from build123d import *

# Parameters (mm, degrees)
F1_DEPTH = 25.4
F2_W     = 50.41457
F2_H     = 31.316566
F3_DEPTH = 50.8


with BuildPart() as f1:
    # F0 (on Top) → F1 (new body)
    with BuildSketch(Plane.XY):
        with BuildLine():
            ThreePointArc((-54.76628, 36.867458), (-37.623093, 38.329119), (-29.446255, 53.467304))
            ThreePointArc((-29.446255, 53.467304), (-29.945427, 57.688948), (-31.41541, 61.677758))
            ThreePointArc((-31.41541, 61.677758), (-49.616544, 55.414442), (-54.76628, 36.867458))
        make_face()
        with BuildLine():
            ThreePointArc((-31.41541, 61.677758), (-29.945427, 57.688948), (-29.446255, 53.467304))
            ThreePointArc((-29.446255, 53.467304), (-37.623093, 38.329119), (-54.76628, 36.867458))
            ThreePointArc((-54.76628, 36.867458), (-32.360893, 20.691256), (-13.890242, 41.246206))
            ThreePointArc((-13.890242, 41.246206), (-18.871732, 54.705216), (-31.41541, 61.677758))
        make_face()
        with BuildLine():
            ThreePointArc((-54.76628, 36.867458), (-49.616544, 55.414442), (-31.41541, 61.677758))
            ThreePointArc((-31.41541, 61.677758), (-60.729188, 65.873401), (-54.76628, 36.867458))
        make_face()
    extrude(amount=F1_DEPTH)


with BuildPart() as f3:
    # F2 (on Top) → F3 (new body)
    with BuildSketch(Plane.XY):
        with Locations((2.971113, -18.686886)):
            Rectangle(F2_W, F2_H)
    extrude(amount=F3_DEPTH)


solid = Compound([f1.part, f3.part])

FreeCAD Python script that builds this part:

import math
import FreeCAD as App
import Part
import Sketcher

V = App.Vector
Q = App.Units.Quantity

doc = App.newDocument("Part")
params = doc.addObject("Spreadsheet::Sheet", "Params")
for row, (alias, value) in enumerate([
    ("pad1_length", "1 in"),
    ("pad2_length", "2 in"),
], start=1):
    params.set(f"A{row}", alias)
    params.set(f"B{row}", "=" + value)
    params.setAlias(f"B{row}", alias)

body = doc.addObject("PartDesign::Body", "Body")

# Sketch on XY plane
sketch1 = doc.addObject("Sketcher::SketchObject", "Sketch")
body.addObject(sketch1)
sketch1.AttachmentSupport = (doc.XY_Plane, [""])
sketch1.MapMode = "FlatFace"
sketch1.addGeometry([
    Part.ArcOfCircle(Part.Circle(V(-35, 41, 0), V(0, 0, 1), 21), math.radians(-168), math.radians(0)),
    Part.ArcOfCircle(Part.Circle(V(-35, 41, 0), V(0, 0, 1), 21), math.radians(0), math.radians(81)),
    Part.ArcOfCircle(Part.Circle(V(-48, 53, 0), V(0, 0, 1), 18), math.radians(27), math.radians(246)),
], False)
sketch1.addConstraint([
    Sketcher.Constraint("Tangent", 0, 2, 1, 1),
    Sketcher.Constraint("Coincident", 1, 2, 2, 1),
    Sketcher.Constraint("Coincident", 2, 2, 0, 1),
    Sketcher.Constraint("Equal", 0, 1),
    Sketcher.Constraint("Horizontal", 1, 3, 0, 2),
    Sketcher.Constraint("Radius", 0, Q("20.67255 mm")),
    Sketcher.Constraint("Radius", 2, Q("18.101454 mm")),
    Sketcher.Constraint("DistanceY", 1, 3, 2, 3, Q("12.221098 mm")),
    Sketcher.Constraint("DistanceX", 2, 3, 1, 2, Q("16.132299 mm")),
    Sketcher.Constraint("DistanceX", 2, 3, -1, 1, Q("47.547709 mm")),
    Sketcher.Constraint("DistanceY", -1, 1, 0, 3, Q("41.246206 mm")),
])
pad1 = doc.addObject("PartDesign::Pad", "Pad")
body.addObject(pad1)
pad1.Profile = sketch1
pad1.setExpression("Length", "Params.pad1_length")
body2 = doc.addObject("PartDesign::Body", "Body001")

# Sketch on XY plane
sketch2 = doc.addObject("Sketcher::SketchObject", "Sketch001")
body2.addObject(sketch2)
sketch2.AttachmentSupport = (doc.getObject("XY_Plane001"), [""])
sketch2.MapMode = "FlatFace"
sketch2.addGeometry([
    Part.LineSegment(V(-22, -3, 0), V(-22, -34, 0)),
    Part.LineSegment(V(-22, -34, 0), V(28, -34, 0)),
    Part.LineSegment(V(28, -34, 0), V(28, -3, 0)),
    Part.LineSegment(V(28, -3, 0), V(-22, -3, 0)),
], False)
sketch2.addConstraint([
    Sketcher.Constraint("Coincident", 0, 2, 1, 1),
    Sketcher.Constraint("Coincident", 1, 2, 2, 1),
    Sketcher.Constraint("Coincident", 2, 2, 3, 1),
    Sketcher.Constraint("Coincident", 3, 2, 0, 1),
    Sketcher.Constraint("Vertical", 0),
    Sketcher.Constraint("Horizontal", 1),
    Sketcher.Constraint("Vertical", 2),
    Sketcher.Constraint("Horizontal", 3),
    Sketcher.Constraint("DistanceX", 1, 1, 1, 2, Q("50.41457 mm")),
    Sketcher.Constraint("DistanceX", -1, 1, 1, 2, Q("28.178398 mm")),
    Sketcher.Constraint("DistanceY", 0, 2, 0, 1, Q("31.316566 mm")),
    Sketcher.Constraint("DistanceY", 0, 2, -1, 1, Q("34.345169 mm")),
])
pad2 = doc.addObject("PartDesign::Pad", "Pad001")
body2.addObject(pad2)
pad2.Profile = sketch2
pad2.setExpression("Length", "Params.pad2_length")

doc.recompute()
